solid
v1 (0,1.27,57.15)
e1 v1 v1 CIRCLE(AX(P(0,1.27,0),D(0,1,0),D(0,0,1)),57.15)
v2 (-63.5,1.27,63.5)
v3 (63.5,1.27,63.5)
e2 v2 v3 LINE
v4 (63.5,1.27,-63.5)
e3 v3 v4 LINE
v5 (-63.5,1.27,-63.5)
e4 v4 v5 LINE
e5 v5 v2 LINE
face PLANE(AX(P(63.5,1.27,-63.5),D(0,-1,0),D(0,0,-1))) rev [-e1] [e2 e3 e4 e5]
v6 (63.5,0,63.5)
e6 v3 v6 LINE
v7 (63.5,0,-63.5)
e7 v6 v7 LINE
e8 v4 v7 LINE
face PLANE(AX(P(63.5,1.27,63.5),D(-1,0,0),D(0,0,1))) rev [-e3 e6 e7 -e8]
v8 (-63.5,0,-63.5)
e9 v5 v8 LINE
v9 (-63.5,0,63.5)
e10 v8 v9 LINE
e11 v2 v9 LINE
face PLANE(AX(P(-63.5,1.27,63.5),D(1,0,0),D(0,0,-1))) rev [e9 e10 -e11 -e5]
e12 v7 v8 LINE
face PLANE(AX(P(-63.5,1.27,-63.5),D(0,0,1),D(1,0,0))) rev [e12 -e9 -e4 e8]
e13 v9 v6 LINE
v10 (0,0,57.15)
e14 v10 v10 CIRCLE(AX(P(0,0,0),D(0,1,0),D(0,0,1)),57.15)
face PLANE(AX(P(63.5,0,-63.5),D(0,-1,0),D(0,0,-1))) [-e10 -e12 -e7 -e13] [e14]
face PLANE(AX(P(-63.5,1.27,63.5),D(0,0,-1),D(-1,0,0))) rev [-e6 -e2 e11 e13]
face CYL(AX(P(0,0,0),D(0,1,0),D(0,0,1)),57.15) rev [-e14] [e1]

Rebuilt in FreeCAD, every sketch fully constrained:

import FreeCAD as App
import Part
import Sketcher
Q = App.Units.Quantity

doc = App.newDocument("Part")
params = doc.addObject("Spreadsheet::Sheet", "Params")
for row, (alias, value) in enumerate([
    ("sketch1_width", "5 in"),
    ("pad1_length", "0.05 in"),
    ("sketch2_diameter", "4.5 in"),
    ("pocket1_length", "0.05 in"),
], start=1):
    params.set(f"A{row}", alias)
    params.set(f"B{row}", "=" + value)
    params.setAlias(f"B{row}", alias)

body = doc.addObject("PartDesign::Body", "Body")

# Sketch on XZ plane
sketch1 = doc.addObject("Sketcher::SketchObject", "Sketch")
body.addObject(sketch1)
sketch1.AttachmentSupport = (doc.XZ_Plane, [""])
sketch1.MapMode = "FlatFace"
sketch1.addGeometry([
    Part.LineSegment(App.Vector(-64, -64, 0), App.Vector(-64, 64, 0)),
    Part.LineSegment(App.Vector(-64, 64, 0), App.Vector(64, 64, 0)),
    Part.LineSegment(App.Vector(64, 64, 0), App.Vector(64, -64, 0)),
    Part.LineSegment(App.Vector(64, -64, 0), App.Vector(-64, -64, 0)),
], False)
sketch1.addConstraint([
    Sketcher.Constraint("Coincident", 0, 2, 1, 1),
    Sketcher.Constraint("Coincident", 1, 2, 2, 1),
    Sketcher.Constraint("Coincident", 2, 2, 3, 1),
    Sketcher.Constraint("Coincident", 3, 2, 0, 1),
    Sketcher.Constraint("Vertical", 0),
    Sketcher.Constraint("Horizontal", 1),
    Sketcher.Constraint("Vertical", 2),
    Sketcher.Constraint("Horizontal", 3),
    Sketcher.Constraint("Symmetric", 0, 2, 2, 2, -1, 1),
    Sketcher.Constraint("Equal", 3, 0),
    Sketcher.Constraint("DistanceX", 1, 1, 1, 2, Q("5 in")),
])
sketch1.setExpression("Constraints[10]", "Params.sketch1_width")
pad1 = doc.addObject("PartDesign::Pad", "Pad")
body.addObject(pad1)
pad1.Profile = sketch1
pad1.setExpression("Length", "Params.pad1_length")
pad1.Reversed = True

# Sketch on XZ plane
sketch2 = doc.addObject("Sketcher::SketchObject", "Sketch001")
body.addObject(sketch2)
sketch2.AttachmentSupport = (doc.XZ_Plane, [""])
sketch2.MapMode = "FlatFace"
sketch2.AttachmentOffset = App.Placement(App.Vector(0, 0, -0.05 * 25.4), App.Rotation())
sketch2.addGeometry(Part.Circle(App.Vector(0, 0, 0), App.Vector(0, 0, 1), 57), False)
sketch2.addConstraint([
    Sketcher.Constraint("Coincident", 0, 3, -1, 1),
    Sketcher.Constraint("Diameter", 0, Q("4.5 in")),
])
sketch2.setExpression("Constraints[1]", "Params.sketch2_diameter")
pocket1 = doc.addObject("PartDesign::Pocket", "Pocket")
body.addObject(pocket1)
pocket1.Profile = sketch2
pocket1.setExpression("Length", "Params.pocket1_length")
pocket1.Reversed = True

doc.recompute()
